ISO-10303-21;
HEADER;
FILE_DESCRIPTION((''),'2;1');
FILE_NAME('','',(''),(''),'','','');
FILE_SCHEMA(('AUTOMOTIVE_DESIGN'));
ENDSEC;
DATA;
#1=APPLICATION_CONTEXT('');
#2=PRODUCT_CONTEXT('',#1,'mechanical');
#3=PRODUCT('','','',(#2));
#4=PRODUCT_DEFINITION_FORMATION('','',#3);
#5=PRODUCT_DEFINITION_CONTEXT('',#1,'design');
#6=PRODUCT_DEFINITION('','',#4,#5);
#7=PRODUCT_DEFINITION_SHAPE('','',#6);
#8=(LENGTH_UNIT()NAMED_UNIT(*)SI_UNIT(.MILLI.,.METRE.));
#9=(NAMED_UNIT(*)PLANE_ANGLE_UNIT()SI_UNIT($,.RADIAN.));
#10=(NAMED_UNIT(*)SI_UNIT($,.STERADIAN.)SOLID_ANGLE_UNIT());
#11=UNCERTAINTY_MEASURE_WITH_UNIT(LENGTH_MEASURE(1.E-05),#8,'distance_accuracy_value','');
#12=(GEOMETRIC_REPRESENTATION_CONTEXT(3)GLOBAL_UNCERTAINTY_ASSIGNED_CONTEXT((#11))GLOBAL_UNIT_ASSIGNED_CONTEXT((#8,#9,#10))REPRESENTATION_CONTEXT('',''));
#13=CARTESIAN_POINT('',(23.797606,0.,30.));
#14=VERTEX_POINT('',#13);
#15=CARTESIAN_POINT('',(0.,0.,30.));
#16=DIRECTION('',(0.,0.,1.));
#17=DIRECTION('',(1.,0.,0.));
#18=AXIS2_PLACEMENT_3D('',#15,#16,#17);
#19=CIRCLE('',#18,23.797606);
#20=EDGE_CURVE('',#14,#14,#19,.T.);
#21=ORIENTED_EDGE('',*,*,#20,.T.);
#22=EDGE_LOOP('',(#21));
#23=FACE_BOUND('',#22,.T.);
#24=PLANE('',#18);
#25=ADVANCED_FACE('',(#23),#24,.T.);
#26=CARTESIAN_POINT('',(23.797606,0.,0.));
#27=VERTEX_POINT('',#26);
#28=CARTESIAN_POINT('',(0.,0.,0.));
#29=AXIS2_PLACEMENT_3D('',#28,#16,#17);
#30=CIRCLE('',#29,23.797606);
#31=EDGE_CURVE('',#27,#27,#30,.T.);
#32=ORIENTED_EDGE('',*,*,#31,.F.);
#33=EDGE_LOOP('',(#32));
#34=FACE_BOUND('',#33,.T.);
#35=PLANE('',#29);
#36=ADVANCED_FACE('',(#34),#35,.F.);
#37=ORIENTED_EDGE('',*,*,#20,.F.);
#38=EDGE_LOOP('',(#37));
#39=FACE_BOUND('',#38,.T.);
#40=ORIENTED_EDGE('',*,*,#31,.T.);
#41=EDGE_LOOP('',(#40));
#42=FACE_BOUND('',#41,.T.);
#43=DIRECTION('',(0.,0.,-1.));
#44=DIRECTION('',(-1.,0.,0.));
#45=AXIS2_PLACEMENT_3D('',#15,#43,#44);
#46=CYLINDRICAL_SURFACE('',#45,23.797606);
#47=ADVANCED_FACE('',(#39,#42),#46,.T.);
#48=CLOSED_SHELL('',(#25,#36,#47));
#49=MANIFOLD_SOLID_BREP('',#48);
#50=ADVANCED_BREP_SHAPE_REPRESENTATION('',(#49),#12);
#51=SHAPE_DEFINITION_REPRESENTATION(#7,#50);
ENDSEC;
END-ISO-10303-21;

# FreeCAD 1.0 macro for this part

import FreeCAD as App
import Part
import Sketcher
Q = App.Units.Quantity

doc = App.newDocument("Part")
body = doc.addObject("PartDesign::Body", "Body")

sketch1 = body.newObject("Sketcher::SketchObject", "Sketch")
sketch1.AttachmentSupport = (doc.getObject("XY_Plane"), [""])
sketch1.MapMode = "FlatFace"
sketch1.addGeometry(Part.Circle(App.Vector(0, 0, 0), App.Vector(0, 0, 1), 24), False)
sketch1.addConstraint([
    Sketcher.Constraint("Coincident", 0, 3, -1, 1),
    Sketcher.Constraint("Diameter", 0, Q("47.595212 mm")),
])
pad1 = body.newObject("PartDesign::Pad", "Pad")
pad1.Profile = sketch1
pad1.Length = 30

doc.recompute()
